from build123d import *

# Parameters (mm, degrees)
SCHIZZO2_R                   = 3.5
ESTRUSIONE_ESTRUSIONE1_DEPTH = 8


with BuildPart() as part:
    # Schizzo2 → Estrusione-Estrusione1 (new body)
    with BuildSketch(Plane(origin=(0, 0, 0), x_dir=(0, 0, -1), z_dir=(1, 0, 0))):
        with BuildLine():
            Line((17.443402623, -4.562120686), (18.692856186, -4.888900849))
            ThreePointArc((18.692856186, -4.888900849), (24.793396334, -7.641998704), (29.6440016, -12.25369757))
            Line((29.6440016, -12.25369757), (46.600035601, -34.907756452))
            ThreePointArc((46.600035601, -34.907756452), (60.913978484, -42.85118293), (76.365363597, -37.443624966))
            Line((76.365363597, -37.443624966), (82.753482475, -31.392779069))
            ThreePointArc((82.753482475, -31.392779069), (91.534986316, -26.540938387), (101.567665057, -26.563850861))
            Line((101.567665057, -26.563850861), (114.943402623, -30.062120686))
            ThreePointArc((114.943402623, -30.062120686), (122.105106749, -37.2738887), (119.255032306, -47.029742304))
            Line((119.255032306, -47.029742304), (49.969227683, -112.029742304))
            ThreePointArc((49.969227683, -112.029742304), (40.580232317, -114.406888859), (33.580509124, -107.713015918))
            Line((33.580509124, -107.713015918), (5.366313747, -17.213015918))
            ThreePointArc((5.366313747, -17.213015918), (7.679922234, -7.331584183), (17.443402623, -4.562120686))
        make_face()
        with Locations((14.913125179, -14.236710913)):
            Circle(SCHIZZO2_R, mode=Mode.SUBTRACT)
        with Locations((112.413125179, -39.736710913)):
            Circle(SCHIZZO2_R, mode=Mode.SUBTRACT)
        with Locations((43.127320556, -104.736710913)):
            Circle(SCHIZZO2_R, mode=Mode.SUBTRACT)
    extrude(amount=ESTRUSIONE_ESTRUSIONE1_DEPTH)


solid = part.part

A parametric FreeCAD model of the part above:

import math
import FreeCAD as App
import Part
import Sketcher

doc = App.newDocument("Part")
body = doc.addObject("PartDesign::Body", "Body")

sketch1 = body.newObject("Sketcher::SketchObject", "Sketch")
sketch1.AttachmentSupport = (doc.getObject("YZ_Plane"), [""])
sketch1.MapMode = "FlatFace"
sketch1.addGeometry(Part.LineSegment(App.Vector(-4.9, -18.7, 0), App.Vector(-4.6, -17.4, 0)), False)
sketch1.addGeometry(Part.ArcOfCircle(Part.Circle(App.Vector(-14.2, -14.9, 0), App.Vector(0, 0, 1), 10), math.radians(-15), math.radians(107)), False)
sketch1.addGeometry(Part.LineSegment(App.Vector(-17.2, -5.4, 0), App.Vector(-107.7, -33.6, 0)), False)
sketch1.addGeometry(Part.ArcOfCircle(Part.Circle(App.Vector(-104.7, -43.1, 0), App.Vector(0, 0, 1), 10), math.radians(107), math.radians(223)), False)
sketch1.addGeometry(Part.LineSegment(App.Vector(-112, -50, 0), App.Vector(-47, -119.3, 0)), False)
sketch1.addGeometry(Part.ArcOfCircle(Part.Circle(App.Vector(-39.7, -112.4, 0), App.Vector(0, 0, 1), 10), math.radians(-137), math.radians(-15)), False)
sketch1.addGeometry(Part.LineSegment(App.Vector(-30.1, -114.9, 0), App.Vector(-26.6, -101.6, 0)), False)
sketch1.addGeometry(Part.ArcOfCircle(Part.Circle(App.Vector(-45.9, -96.5, 0), App.Vector(0, 0, 1), 20), math.radians(-15), math.radians(43)), False)
sketch1.addGeometry(Part.LineSegment(App.Vector(-31.4, -82.8, 0), App.Vector(-37.4, -76.4, 0)), False)
sketch1.addGeometry(Part.ArcOfCircle(Part.Circle(App.Vector(-22.9, -62.6, 0), App.Vector(0, 0, 1), 20), math.radians(127), math.radians(223)), False)
sketch1.addGeometry(Part.LineSegment(App.Vector(-34.9, -46.6, 0), App.Vector(-12.3, -29.6, 0)), False)
sketch1.addGeometry(Part.ArcOfCircle(Part.Circle(App.Vector(-24.2, -13.6, 0), App.Vector(0, 0, 1), 20), math.radians(-53), math.radians(-15)), False)
sketch1.addGeometry(Part.Circle(App.Vector(-104.7, -43.1, 0), App.Vector(0, 0, 1), 3.5), False)
sketch1.addGeometry(Part.Circle(App.Vector(-39.7, -112.4, 0), App.Vector(0, 0, 1), 3.5), False)
sketch1.addGeometry(Part.Circle(App.Vector(-14.2, -14.9, 0), App.Vector(0, 0, 1), 3.5), False)
sketch1.addConstraint(Sketcher.Constraint("Tangent", 0, 2, 1, 1))
sketch1.addConstraint(Sketcher.Constraint("Tangent", 1, 2, 2, 1))
sketch1.addConstraint(Sketcher.Constraint("Tangent", 2, 2, 3, 1))
sketch1.addConstraint(Sketcher.Constraint("Tangent", 3, 2, 4, 1))
sketch1.addConstraint(Sketcher.Constraint("Tangent", 4, 2, 5, 1))
sketch1.addConstraint(Sketcher.Constraint("Tangent", 5, 2, 6, 1))
sketch1.addConstraint(Sketcher.Constraint("Tangent", 6, 2, 7, 1))
sketch1.addConstraint(Sketcher.Constraint("Tangent", 7, 2, 8, 1))
sketch1.addConstraint(Sketcher.Constraint("Tangent", 8, 2, 9, 2))
sketch1.addConstraint(Sketcher.Constraint("Tangent", 9, 1, 10, 1))
sketch1.addConstraint(Sketcher.Constraint("Tangent", 10, 2, 11, 1))
sketch1.addConstraint(Sketcher.Constraint("Tangent", 11, 2, 0, 1))
sketch1.addConstraint(Sketcher.Constraint("Coincident", 12, 3, 3, 3))
sketch1.addConstraint(Sketcher.Constraint("Coincident", 13, 3, 5, 3))
sketch1.addConstraint(Sketcher.Constraint("Coincident", 14, 3, 1, 3))
sketch1.addConstraint(Sketcher.Constraint("Equal", 1, 3))
sketch1.addConstraint(Sketcher.Constraint("Equal", 3, 5))
sketch1.addConstraint(Sketcher.Constraint("Equal", 7, 9))
sketch1.addConstraint(Sketcher.Constraint("Equal", 9, 11))
sketch1.addConstraint(Sketcher.Constraint("Equal", 12, 13))
sketch1.addConstraint(Sketcher.Constraint("Equal", 13, 14))
sketch1.addConstraint(Sketcher.Constraint("Parallel", 0, 6))
sketch1.addConstraint(Sketcher.Constraint("Diameter", 12, 7.0))
sketch1.addConstraint(Sketcher.Constraint("Radius", 1, 10.0))
sketch1.addConstraint(Sketcher.Constraint("Radius", 7, 20.0))
sketch1.addConstraint(Sketcher.Constraint("DistanceX", 3, 3, 5, 3, 65.0))
sketch1.addConstraint(Sketcher.Constraint("DistanceX", 3, 3, 1, 3, 90.5))
sketch1.addConstraint(Sketcher.Constraint("DistanceY", 5, 3, 1, 3, 97.5))
sketch1.addConstraint(Sketcher.Constraint("DistanceY", 10, 2, -1, 1, 29.644002))
sketch1.addConstraint(Sketcher.Constraint("DistanceY", 11, 3, -1, 1, 13.632301))
sketch1.addConstraint(Sketcher.Constraint("DistanceX", 11, 2, -1, 1, 4.888901))
sketch1.addConstraint(Sketcher.Constraint("DistanceY", 0, 2, 11, 3, 3.811101))
sketch1.addConstraint(Sketcher.Constraint("DistanceY", 7, 3, 2, 2, 62.926601))
sketch1.addConstraint(Sketcher.Constraint("DistanceY", 6, 2, 8, 2, 25.202301))
sketch1.addConstraint(Sketcher.Constraint("Distance", 0, 1.29148))
sketch1.addConstraint(Sketcher.Constraint("Distance", 2, 94.796049))
pad1 = body.newObject("PartDesign::Pad", "Pad")
pad1.Profile = sketch1
pad1.Length = 8

doc.recompute()
